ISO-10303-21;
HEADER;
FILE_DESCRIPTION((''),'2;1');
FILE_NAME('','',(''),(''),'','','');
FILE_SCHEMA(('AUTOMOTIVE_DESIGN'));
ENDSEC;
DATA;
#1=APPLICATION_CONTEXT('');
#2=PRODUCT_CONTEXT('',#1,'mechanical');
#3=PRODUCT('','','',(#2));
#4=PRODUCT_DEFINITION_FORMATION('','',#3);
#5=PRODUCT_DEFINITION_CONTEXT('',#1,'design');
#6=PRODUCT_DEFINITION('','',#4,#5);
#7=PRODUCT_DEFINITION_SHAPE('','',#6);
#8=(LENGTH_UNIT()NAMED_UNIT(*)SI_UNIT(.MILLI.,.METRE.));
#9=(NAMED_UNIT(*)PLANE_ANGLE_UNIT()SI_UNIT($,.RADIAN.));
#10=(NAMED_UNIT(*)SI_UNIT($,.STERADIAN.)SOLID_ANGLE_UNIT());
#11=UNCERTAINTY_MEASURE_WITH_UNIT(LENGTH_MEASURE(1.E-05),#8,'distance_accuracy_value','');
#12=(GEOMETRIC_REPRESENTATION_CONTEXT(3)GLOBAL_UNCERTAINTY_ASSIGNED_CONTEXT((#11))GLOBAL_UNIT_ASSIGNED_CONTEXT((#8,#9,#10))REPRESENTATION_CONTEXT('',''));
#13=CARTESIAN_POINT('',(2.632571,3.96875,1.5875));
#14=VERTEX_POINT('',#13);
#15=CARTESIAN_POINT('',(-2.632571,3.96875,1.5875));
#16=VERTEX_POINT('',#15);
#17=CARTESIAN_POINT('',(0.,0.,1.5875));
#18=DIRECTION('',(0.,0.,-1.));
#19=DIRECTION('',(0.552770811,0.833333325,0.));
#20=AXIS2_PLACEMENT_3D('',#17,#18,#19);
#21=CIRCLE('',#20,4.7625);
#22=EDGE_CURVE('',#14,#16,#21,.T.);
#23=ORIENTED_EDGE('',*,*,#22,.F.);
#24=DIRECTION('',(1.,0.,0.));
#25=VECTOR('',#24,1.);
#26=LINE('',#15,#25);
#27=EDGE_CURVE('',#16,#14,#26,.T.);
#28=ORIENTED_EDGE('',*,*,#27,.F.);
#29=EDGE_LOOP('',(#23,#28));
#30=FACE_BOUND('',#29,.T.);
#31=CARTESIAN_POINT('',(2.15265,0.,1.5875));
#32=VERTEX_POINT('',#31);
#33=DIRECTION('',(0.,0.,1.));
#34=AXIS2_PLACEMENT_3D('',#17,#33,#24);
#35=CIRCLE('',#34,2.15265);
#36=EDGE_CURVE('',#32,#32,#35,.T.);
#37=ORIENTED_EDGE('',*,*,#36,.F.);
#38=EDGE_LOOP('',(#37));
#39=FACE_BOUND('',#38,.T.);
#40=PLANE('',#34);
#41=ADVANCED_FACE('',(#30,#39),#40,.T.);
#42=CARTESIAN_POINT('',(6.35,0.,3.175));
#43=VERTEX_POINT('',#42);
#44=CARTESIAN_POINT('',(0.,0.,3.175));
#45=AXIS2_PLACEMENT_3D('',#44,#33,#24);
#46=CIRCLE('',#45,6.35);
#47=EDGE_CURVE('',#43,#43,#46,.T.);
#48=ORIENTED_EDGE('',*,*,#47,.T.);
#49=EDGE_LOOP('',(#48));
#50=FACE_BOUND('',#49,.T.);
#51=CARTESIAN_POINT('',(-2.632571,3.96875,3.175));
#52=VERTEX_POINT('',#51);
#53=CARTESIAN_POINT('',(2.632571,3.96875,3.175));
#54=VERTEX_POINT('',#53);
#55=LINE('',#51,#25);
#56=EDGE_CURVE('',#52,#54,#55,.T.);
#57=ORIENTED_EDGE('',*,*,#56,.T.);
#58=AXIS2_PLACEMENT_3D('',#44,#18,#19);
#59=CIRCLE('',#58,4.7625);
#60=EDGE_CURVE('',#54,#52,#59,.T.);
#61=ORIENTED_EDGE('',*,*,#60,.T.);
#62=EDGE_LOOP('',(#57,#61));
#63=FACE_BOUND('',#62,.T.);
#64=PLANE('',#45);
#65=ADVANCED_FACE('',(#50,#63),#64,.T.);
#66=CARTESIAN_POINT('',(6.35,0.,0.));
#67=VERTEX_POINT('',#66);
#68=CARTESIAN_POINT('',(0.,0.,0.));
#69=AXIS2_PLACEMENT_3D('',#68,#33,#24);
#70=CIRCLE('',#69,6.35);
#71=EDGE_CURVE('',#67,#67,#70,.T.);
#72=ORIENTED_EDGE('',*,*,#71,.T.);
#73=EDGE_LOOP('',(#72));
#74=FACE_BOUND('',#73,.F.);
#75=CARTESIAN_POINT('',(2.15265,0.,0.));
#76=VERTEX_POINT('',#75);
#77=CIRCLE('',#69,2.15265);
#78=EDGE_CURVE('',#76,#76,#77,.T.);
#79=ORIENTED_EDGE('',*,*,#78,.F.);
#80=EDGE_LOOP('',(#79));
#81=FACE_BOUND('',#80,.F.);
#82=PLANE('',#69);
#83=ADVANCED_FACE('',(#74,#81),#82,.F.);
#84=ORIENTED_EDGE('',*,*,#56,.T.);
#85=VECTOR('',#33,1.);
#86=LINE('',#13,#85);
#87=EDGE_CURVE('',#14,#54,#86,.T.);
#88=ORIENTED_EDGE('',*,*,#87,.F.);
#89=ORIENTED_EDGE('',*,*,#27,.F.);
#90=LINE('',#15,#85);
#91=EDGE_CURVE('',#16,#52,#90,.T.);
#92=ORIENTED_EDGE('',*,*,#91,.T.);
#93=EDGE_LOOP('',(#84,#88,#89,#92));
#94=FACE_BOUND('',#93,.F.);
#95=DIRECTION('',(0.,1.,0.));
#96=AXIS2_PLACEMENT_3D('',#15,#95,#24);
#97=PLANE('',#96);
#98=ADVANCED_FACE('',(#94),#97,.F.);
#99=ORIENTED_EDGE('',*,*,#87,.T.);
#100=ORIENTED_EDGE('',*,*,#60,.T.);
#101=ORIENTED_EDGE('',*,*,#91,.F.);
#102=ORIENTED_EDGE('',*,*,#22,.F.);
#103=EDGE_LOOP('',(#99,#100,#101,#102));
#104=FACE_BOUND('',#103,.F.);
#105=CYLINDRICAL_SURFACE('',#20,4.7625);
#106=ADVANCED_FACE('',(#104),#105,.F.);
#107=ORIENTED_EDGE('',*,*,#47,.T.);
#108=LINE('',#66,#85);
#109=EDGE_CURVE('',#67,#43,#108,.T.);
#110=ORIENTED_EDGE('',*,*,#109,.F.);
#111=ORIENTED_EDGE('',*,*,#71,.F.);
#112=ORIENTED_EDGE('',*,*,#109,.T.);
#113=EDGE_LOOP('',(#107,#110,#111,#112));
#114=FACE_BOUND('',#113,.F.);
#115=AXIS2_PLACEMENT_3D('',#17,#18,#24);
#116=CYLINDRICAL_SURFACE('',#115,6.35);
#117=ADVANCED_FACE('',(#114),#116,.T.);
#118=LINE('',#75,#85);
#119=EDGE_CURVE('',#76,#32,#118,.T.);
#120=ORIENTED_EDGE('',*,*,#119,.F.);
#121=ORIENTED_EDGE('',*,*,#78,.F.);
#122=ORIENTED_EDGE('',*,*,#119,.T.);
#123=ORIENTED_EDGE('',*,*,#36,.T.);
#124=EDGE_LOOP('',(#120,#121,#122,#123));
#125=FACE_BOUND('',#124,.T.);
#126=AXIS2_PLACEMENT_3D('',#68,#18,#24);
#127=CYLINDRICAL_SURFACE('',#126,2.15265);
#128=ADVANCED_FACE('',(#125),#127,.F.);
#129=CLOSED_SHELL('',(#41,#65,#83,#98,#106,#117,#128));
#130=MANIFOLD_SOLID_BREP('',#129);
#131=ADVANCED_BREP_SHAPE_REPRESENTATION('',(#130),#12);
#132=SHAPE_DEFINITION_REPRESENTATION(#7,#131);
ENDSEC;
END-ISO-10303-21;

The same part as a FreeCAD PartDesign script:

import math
import FreeCAD as App
import Part
import Sketcher

V = App.Vector
Q = App.Units.Quantity

doc = App.newDocument("Part")
body = doc.addObject("PartDesign::Body", "Body")

# Sketch on XY plane
sketch1 = body.newObject("Sketcher::SketchObject", "Sketch")
sketch1.AttachmentSupport = (doc.getObject("XY_Plane"), [""])
sketch1.MapMode = "FlatFace"
sketch1.addGeometry([
    Part.Circle(V(0, 0, 0), V(0, 0, 1), 6.3),
    Part.Circle(V(0, 0, 0), V(0, 0, 1), 2.2),
], False)
sketch1.addConstraint([
    Sketcher.Constraint("Coincident", 0, 3, -1, 1),
    Sketcher.Constraint("Coincident", 1, 3, -1, 1),
    Sketcher.Constraint("Diameter", 0, Q("0.5 in")),
    Sketcher.Constraint("Diameter", 1, Q("0.1695 in")),
])
pad1 = body.newObject("PartDesign::Pad", "Pad")
pad1.Profile = sketch1
pad1.Length = Q("0.0625 in")

# Sketch on XY plane
sketch2 = body.newObject("Sketcher::SketchObject", "Sketch001")
sketch2.AttachmentSupport = (doc.getObject("XY_Plane"), [""])
sketch2.MapMode = "FlatFace"
sketch2.AttachmentOffset = App.Placement(V(0, 0, 0.0625 * 25.4), App.Rotation())
sketch2.addGeometry([
    Part.Circle(V(0, 0, 0), V(0, 0, 1), 6.3),
    Part.LineSegment(V(-2.6, 4, 0), V(2.6, 4, 0)),
    Part.ArcOfCircle(Part.Circle(V(0, 0, 0), V(0, 0, 1), 4.8), math.radians(124), math.radians(416)),
], False)
sketch2.addConstraint([
    Sketcher.Constraint("Coincident", 1, 1, 2, 1),
    Sketcher.Constraint("Coincident", 2, 2, 1, 2),
    Sketcher.Constraint("Horizontal", 1),
    Sketcher.Constraint("Coincident", 0, 3, -1, 1),
    Sketcher.Constraint("Coincident", 2, 3, -1, 1),
    Sketcher.Constraint("Diameter", 0, Q("0.5 in")),
    Sketcher.Constraint("Radius", 2, Q("0.1875 in")),
    Sketcher.Constraint("DistanceY", -1, 1, 1, 1, Q("0.15625 in")),
])
pad2 = body.newObject("PartDesign::Pad", "Pad001")
pad2.Profile = sketch2
pad2.Length = Q("0.0625 in")

doc.recompute()
